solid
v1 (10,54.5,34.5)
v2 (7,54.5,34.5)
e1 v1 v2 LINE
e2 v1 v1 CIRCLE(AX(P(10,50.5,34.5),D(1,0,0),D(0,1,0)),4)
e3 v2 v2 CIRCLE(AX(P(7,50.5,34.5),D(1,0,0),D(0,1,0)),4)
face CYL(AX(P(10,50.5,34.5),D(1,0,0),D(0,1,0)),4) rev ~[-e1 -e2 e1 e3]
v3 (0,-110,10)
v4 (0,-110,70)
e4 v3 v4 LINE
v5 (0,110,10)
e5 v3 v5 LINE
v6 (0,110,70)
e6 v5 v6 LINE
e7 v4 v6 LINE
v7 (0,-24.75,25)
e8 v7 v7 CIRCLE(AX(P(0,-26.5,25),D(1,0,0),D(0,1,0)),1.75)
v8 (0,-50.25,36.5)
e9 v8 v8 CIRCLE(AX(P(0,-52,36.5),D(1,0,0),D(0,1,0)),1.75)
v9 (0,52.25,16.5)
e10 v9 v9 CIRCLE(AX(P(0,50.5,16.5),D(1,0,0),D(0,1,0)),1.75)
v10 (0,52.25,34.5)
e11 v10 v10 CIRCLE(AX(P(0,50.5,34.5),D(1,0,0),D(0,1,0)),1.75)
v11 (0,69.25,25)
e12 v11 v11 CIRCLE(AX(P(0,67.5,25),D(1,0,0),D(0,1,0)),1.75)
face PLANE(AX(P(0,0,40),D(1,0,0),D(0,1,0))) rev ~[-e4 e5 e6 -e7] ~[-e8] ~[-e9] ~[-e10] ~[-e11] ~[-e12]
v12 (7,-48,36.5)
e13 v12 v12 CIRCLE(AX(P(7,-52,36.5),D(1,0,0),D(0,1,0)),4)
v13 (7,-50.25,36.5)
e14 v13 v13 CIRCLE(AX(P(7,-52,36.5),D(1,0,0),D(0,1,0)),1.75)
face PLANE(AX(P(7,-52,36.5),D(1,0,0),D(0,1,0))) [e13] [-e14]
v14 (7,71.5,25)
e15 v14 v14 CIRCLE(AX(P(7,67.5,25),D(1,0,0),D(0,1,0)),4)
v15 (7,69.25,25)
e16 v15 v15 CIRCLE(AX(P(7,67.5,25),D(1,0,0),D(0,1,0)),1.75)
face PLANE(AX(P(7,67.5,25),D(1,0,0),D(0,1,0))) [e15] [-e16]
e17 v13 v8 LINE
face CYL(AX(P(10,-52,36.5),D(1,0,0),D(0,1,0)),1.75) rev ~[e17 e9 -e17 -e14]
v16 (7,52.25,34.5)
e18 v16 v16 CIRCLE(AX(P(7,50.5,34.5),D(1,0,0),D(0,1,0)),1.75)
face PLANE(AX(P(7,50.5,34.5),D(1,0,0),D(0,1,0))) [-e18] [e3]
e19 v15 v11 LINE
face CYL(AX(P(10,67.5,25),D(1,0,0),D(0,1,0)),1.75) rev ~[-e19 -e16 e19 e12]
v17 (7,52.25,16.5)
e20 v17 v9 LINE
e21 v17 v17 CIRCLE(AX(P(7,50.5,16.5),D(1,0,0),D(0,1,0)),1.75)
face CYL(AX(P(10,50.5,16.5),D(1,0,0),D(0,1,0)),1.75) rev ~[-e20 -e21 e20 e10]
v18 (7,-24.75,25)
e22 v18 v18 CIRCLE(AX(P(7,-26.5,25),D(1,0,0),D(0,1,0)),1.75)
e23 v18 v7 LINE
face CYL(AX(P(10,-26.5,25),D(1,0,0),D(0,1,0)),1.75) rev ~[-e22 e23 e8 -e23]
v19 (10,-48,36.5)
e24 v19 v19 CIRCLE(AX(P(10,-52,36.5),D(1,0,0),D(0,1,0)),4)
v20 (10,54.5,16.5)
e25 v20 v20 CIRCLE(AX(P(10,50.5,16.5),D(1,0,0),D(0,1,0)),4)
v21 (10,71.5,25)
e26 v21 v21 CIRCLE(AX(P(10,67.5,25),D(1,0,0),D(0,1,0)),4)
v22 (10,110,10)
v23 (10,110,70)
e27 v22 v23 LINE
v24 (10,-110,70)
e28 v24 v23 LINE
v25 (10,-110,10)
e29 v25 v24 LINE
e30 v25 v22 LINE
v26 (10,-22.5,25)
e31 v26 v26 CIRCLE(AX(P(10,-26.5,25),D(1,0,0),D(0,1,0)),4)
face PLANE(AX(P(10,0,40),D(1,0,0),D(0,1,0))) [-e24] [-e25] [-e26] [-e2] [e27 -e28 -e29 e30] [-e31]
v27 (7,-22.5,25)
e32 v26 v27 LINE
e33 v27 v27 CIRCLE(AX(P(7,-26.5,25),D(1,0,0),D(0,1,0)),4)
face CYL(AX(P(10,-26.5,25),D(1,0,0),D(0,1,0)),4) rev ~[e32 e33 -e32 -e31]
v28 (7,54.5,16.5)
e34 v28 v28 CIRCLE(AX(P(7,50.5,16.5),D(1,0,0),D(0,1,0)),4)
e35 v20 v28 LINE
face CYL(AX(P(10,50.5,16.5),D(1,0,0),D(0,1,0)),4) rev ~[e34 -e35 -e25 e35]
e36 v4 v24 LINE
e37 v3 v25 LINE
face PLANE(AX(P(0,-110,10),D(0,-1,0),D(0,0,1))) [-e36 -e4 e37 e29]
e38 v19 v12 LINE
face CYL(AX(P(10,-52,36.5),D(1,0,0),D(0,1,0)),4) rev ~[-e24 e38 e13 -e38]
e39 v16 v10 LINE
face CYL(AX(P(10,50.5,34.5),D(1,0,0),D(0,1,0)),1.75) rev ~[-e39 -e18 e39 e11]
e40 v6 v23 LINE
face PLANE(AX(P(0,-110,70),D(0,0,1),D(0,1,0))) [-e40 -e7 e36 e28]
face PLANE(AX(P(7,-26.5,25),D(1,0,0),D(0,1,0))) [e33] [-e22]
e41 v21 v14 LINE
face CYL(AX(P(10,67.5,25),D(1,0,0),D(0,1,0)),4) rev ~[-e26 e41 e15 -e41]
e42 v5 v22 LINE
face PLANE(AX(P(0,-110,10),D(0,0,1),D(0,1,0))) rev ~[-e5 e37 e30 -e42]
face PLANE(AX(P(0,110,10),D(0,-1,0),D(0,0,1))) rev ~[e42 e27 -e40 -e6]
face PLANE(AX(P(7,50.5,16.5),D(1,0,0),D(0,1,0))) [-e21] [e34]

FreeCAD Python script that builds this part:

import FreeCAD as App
import Part
import Sketcher

V = App.Vector
Q = App.Units.Quantity


def add_polygon(sketch, points):
    """Adds a closed chain of lines whose ends are joined by coincident constraints."""
    first, n = sketch.GeometryCount, len(points)
    for a, b in zip(points, points[1:] + points[:1]):
        sketch.addGeometry(Part.LineSegment(App.Vector(*a, 0), App.Vector(*b, 0)), False)
    for i in range(n):
        sketch.addConstraint(Sketcher.Constraint("Coincident", first + i, 2, first + (i + 1) % n, 1))

doc = App.newDocument("Part")
body = doc.addObject("PartDesign::Body", "Body")

# Sketch on YZ plane
sketch1 = body.newObject("Sketcher::SketchObject", "Sketch")
sketch1.AttachmentSupport = (doc.getObject("YZ_Plane"), [""])
sketch1.MapMode = "FlatFace"
add_polygon(sketch1, [(-110, 70), (-110, 10), (110, 10), (110, 70)])  # lines 0-3
sketch1.addConstraint([
    Sketcher.Constraint("Vertical", 0),
    Sketcher.Constraint("Horizontal", 1),
    Sketcher.Constraint("Vertical", 2),
    Sketcher.Constraint("Horizontal", 3),
    Sketcher.Constraint("DistanceX", 1, 1, 1, 2, Q("220 mm")),
    Sketcher.Constraint("DistanceY", 0, 2, 0, 1, Q("60 mm")),
    Sketcher.Constraint("DistanceX", 0, 2, -1, 1, Q("110 mm")),
    Sketcher.Constraint("DistanceY", -1, 1, 0, 2, Q("10 mm")),
])
pad1 = body.newObject("PartDesign::Pad", "Pad")
pad1.Profile = sketch1
pad1.Length = 10

# Sketch on YZ plane
sketch2 = body.newObject("Sketcher::SketchObject", "Sketch001")
sketch2.AttachmentSupport = (doc.getObject("YZ_Plane"), [""])
sketch2.MapMode = "FlatFace"
sketch2.AttachmentOffset = App.Placement(V(0, 0, 10), App.Rotation())
sketch2.addGeometry([
    Part.Circle(V(-52, 36.5, 0), V(0, 0, 1), 1.75),  # 0
    Part.Circle(V(-26.5, 25, 0), V(0, 0, 1), 1.75),  # 1
    Part.Circle(V(50.5, 34.5, 0), V(0, 0, 1), 1.75),  # 2
    Part.Circle(V(50.5, 16.5, 0), V(0, 0, 1), 1.75),  # 3
    Part.Circle(V(67.5, 25, 0), V(0, 0, 1), 1.75),  # 4
], False)
sketch2.addConstraint([
    Sketcher.Constraint("Equal", 0, 1),
    Sketcher.Constraint("Equal", 1, 2),
    Sketcher.Constraint("Equal", 2, 3),
    Sketcher.Constraint("Equal", 3, 4),
    Sketcher.Constraint("Horizontal", 1, 3, 4, 3),
    Sketcher.Constraint("Vertical", 2, 3, 3, 3),
    Sketcher.Constraint("Diameter", 0, Q("3.5 mm")),
    Sketcher.Constraint("DistanceX", 0, 3, -1, 1, Q("52 mm")),
    Sketcher.Constraint("DistanceY", -1, 1, 1, 3, Q("25 mm")),
    Sketcher.Constraint("DistanceX", 1, 3, 2, 3, Q("77 mm")),
    Sketcher.Constraint("DistanceY", 2, 3, 0, 3, Q("2 mm")),
    Sketcher.Constraint("DistanceY", 3, 3, 2, 3, Q("18 mm")),
    Sketcher.Constraint("DistanceX", 3, 3, 4, 3, Q("17 mm")),
    Sketcher.Constraint("DistanceY", -1, 1, 0, 3, Q("36.5 mm")),
    Sketcher.Constraint("DistanceX", 1, 3, -1, 1, Q("26.5 mm")),
])
pocket1 = body.newObject("PartDesign::Pocket", "Pocket")
pocket1.Profile = sketch2
pocket1.Type = "ThroughAll"
pocket1.Midplane = True

# Sketch on YZ plane
sketch3 = body.newObject("Sketcher::SketchObject", "Sketch002")
sketch3.AttachmentSupport = (doc.getObject("YZ_Plane"), [""])
sketch3.MapMode = "FlatFace"
sketch3.AttachmentOffset = App.Placement(V(0, 0, 10), App.Rotation())
sketch3.addGeometry([
    Part.Circle(V(-52, 36.5, 0), V(0, 0, 1), 4),  # 0
    Part.Circle(V(-26.5, 25, 0), V(0, 0, 1), 4),  # 1
    Part.Circle(V(50.5, 34.5, 0), V(0, 0, 1), 4),  # 2
    Part.Circle(V(50.5, 16.5, 0), V(0, 0, 1), 4),  # 3
    Part.Circle(V(67.5, 25, 0), V(0, 0, 1), 4),  # 4
], False)
sketch3.addConstraint([
    Sketcher.Constraint("Equal", 0, 1),
    Sketcher.Constraint("Equal", 1, 2),
    Sketcher.Constraint("Equal", 2, 3),
    Sketcher.Constraint("Equal", 3, 4),
    Sketcher.Constraint("Horizontal", 1, 3, 4, 3),
    Sketcher.Constraint("Vertical", 2, 3, 3, 3),
    Sketcher.Constraint("Diameter", 0, Q("8 mm")),
    Sketcher.Constraint("DistanceX", 0, 3, -1, 1, Q("52 mm")),
    Sketcher.Constraint("DistanceY", -1, 1, 1, 3, Q("25 mm")),
    Sketcher.Constraint("DistanceX", 1, 3, 2, 3, Q("77 mm")),
    Sketcher.Constraint("DistanceY", 2, 3, 0, 3, Q("2 mm")),
    Sketcher.Constraint("DistanceY", 3, 3, 2, 3, Q("18 mm")),
    Sketcher.Constraint("DistanceX", 3, 3, 4, 3, Q("17 mm")),
    Sketcher.Constraint("DistanceY", -1, 1, 0, 3, Q("36.5 mm")),
    Sketcher.Constraint("DistanceX", 1, 3, -1, 1, Q("26.5 mm")),
])
pocket2 = body.newObject("PartDesign::Pocket", "Pocket001")
pocket2.Profile = sketch3
pocket2.Length = 3

doc.recompute()
